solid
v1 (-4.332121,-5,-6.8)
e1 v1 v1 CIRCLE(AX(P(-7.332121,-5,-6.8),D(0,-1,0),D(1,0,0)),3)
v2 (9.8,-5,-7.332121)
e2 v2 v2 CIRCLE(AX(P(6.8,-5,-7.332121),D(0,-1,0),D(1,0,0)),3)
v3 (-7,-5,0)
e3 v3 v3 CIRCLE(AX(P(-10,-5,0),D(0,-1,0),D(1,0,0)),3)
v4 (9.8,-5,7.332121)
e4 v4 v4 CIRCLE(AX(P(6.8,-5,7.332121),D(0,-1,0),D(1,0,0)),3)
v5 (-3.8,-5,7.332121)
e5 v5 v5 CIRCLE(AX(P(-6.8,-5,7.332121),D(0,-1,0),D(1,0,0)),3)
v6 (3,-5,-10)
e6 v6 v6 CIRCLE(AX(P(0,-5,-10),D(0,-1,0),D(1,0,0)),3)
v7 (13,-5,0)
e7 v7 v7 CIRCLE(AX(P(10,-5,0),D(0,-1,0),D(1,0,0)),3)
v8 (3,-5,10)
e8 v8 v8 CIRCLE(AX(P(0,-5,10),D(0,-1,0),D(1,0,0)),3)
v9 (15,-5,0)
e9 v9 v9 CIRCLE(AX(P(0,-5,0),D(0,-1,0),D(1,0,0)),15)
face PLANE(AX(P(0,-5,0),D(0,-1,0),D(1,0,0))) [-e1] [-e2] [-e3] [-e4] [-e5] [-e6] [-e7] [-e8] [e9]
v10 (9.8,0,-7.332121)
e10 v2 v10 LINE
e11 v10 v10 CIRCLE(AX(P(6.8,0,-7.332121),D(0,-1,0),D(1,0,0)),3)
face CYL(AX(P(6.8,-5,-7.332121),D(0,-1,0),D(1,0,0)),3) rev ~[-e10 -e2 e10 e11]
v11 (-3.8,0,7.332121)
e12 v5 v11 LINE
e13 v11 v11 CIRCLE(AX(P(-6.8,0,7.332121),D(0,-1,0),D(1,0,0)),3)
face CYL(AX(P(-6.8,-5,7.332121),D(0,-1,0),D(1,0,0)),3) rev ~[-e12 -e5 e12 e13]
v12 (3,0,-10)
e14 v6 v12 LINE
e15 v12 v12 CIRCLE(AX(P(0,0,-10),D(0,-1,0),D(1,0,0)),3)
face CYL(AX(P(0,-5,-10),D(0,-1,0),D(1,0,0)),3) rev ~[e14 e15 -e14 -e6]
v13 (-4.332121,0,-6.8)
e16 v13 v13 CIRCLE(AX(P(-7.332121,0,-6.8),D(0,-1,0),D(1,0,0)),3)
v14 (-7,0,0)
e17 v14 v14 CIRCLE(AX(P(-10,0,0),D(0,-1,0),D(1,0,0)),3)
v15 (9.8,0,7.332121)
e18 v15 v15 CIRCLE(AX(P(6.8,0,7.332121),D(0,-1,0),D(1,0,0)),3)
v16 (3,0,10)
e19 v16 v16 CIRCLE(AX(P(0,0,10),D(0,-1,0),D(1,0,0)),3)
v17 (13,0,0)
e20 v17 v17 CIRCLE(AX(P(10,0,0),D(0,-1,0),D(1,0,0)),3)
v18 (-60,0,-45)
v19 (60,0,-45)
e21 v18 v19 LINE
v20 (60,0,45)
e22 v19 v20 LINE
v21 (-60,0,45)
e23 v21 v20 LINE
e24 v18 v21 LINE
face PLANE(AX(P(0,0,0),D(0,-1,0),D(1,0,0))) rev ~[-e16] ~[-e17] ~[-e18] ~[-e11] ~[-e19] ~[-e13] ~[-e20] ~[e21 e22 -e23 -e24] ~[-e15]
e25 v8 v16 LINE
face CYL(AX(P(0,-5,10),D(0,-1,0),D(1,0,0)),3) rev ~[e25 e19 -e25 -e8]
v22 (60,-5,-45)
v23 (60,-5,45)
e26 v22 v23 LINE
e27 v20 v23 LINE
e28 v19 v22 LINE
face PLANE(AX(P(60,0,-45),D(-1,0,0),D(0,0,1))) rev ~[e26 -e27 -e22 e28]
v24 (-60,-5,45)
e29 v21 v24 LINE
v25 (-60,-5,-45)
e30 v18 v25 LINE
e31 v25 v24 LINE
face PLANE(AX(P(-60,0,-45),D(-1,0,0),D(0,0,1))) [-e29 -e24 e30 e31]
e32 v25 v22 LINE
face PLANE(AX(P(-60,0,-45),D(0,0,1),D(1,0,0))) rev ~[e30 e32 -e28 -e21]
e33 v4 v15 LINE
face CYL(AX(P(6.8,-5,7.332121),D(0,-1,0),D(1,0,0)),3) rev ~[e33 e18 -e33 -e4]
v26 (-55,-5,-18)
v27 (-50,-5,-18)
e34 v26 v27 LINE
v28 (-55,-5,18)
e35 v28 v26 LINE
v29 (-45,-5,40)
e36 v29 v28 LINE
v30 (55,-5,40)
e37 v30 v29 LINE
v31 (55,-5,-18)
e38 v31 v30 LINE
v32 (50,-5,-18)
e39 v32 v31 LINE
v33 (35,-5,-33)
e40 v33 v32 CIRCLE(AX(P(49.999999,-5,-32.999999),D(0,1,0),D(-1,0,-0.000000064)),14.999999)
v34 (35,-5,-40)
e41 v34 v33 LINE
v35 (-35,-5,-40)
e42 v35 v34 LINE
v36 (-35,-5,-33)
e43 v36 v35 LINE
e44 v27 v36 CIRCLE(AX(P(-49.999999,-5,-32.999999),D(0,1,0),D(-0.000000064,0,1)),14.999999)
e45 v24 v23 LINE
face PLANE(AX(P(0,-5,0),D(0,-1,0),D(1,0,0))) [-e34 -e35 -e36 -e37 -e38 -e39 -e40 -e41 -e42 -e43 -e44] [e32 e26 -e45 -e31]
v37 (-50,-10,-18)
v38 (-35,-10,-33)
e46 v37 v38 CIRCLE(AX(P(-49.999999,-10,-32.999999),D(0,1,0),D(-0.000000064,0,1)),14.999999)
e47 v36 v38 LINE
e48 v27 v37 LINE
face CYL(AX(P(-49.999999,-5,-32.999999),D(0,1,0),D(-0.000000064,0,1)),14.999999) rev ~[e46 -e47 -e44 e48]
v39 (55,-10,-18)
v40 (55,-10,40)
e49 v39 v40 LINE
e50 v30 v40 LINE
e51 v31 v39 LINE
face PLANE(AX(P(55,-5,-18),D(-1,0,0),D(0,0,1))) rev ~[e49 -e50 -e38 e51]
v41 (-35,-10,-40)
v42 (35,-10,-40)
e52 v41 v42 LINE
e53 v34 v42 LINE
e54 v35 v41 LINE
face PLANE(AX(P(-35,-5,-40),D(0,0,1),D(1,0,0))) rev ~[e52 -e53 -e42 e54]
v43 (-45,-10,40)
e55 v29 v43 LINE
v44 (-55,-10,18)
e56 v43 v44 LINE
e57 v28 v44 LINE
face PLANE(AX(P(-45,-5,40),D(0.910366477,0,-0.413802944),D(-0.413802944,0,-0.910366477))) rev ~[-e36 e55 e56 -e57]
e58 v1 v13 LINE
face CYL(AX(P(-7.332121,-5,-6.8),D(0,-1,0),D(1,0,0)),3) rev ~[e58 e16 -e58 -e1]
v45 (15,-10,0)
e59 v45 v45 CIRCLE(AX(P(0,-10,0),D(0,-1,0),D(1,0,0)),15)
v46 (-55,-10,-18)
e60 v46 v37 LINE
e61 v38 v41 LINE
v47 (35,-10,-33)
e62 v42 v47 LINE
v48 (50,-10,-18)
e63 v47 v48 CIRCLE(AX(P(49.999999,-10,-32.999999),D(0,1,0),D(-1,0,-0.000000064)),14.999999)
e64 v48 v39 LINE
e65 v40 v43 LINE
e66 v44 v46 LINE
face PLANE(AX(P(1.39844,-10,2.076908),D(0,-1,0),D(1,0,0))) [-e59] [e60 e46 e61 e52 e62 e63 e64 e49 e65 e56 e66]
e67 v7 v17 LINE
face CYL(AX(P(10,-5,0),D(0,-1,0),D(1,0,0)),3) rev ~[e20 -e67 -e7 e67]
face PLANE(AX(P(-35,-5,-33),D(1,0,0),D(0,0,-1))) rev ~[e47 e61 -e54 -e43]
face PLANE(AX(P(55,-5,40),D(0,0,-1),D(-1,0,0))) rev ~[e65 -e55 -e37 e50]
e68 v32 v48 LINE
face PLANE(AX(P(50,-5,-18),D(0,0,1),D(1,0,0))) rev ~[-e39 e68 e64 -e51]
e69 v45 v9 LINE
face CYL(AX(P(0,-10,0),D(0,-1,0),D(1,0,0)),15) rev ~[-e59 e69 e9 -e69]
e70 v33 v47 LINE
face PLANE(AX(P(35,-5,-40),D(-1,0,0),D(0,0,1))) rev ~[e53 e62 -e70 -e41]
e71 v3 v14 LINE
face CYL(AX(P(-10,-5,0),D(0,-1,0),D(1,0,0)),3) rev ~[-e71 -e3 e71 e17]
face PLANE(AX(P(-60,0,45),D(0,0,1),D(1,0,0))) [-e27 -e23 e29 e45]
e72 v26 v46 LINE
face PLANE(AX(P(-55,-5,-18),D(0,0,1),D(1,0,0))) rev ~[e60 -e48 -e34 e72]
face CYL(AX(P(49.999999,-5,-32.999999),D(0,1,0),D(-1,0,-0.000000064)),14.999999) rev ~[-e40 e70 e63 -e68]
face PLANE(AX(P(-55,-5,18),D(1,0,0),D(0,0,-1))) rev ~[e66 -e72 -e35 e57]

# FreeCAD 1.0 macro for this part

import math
import FreeCAD as App
import Part
import Sketcher
from FreeCAD import Vector
Q = App.Units.Quantity


def add_polygon(sketch, points):
    """Adds a closed chain of lines whose ends are joined by coincident constraints."""
    first, n = sketch.GeometryCount, len(points)
    for a, b in zip(points, points[1:] + points[:1]):
        sketch.addGeometry(Part.LineSegment(App.Vector(*a, 0), App.Vector(*b, 0)), False)
    for i in range(n):
        sketch.addConstraint(Sketcher.Constraint("Coincident", first + i, 2, first + (i + 1) % n, 1))

doc = App.newDocument("Part")
body = doc.addObject("PartDesign::Body", "Body")

# Sketch on XZ plane
sketch1 = body.newObject("Sketcher::SketchObject", "Sketch")
sketch1.AttachmentSupport = (doc.getObject("XZ_Plane"), [""])
sketch1.MapMode = "FlatFace"
add_polygon(sketch1, [(-60, 45), (-60, -45), (60, -45), (60, 45)])  # lines 0-3
sketch1.addConstraint(Sketcher.Constraint("Vertical", 0))
sketch1.addConstraint(Sketcher.Constraint("Horizontal", 1))
sketch1.addConstraint(Sketcher.Constraint("Vertical", 2))
sketch1.addConstraint(Sketcher.Constraint("Horizontal", 3))
sketch1.addConstraint(Sketcher.Constraint("Symmetric", 0, 2, 2, 2, -1, 1))
sketch1.addConstraint(Sketcher.Constraint("DistanceX", 1, 1, 1, 2, Q("120 mm")))
sketch1.addConstraint(Sketcher.Constraint("DistanceY", 0, 2, 0, 1, Q("90 mm")))
pad1 = body.newObject("PartDesign::Pad", "Pad")
pad1.Profile = sketch1
pad1.Length = 5

# Sketch on XZ plane
sketch2 = body.newObject("Sketcher::SketchObject", "Sketch001")
sketch2.AttachmentSupport = (doc.getObject("XZ_Plane"), [""])
sketch2.MapMode = "FlatFace"
sketch2.AttachmentOffset = App.Placement(Vector(0, 0, 5), App.Rotation())
sketch2.addGeometry(Part.LineSegment(Vector(55, -18, 0), Vector(55, 40, 0)), False)
sketch2.addGeometry(Part.LineSegment(Vector(55, 40, 0), Vector(-45, 40, 0)), False)
sketch2.addGeometry(Part.LineSegment(Vector(-45, 40, 0), Vector(-55, 18, 0)), False)
sketch2.addGeometry(Part.LineSegment(Vector(-55, 18, 0), Vector(-55, -18, 0)), False)
sketch2.addGeometry(Part.LineSegment(Vector(-55, -18, 0), Vector(-50, -18, 0)), False)
sketch2.addGeometry(Part.ArcOfCircle(Part.Circle(Vector(-50, -33, 0), Vector(0, 0, 1), 15), math.radians(0), math.radians(90)), False)
sketch2.addGeometry(Part.LineSegment(Vector(-35, -33, 0), Vector(-35, -40, 0)), False)
sketch2.addGeometry(Part.LineSegment(Vector(-35, -40, 0), Vector(35, -40, 0)), False)
sketch2.addGeometry(Part.LineSegment(Vector(35, -40, 0), Vector(35, -33, 0)), False)
sketch2.addGeometry(Part.ArcOfCircle(Part.Circle(Vector(50, -33, 0), Vector(0, 0, 1), 15), math.radians(90), math.radians(180)), False)
sketch2.addGeometry(Part.LineSegment(Vector(50, -18, 0), Vector(55, -18, 0)), False)
sketch2.addConstraint(Sketcher.Constraint("Coincident", 0, 2, 1, 1))
sketch2.addConstraint(Sketcher.Constraint("Coincident", 1, 2, 2, 1))
sketch2.addConstraint(Sketcher.Constraint("Coincident", 2, 2, 3, 1))
sketch2.addConstraint(Sketcher.Constraint("Coincident", 3, 2, 4, 1))
sketch2.addConstraint(Sketcher.Constraint("Tangent", 4, 2, 5, 2))
sketch2.addConstraint(Sketcher.Constraint("Tangent", 5, 1, 6, 1))
sketch2.addConstraint(Sketcher.Constraint("Coincident", 6, 2, 7, 1))
sketch2.addConstraint(Sketcher.Constraint("Coincident", 7, 2, 8, 1))
sketch2.addConstraint(Sketcher.Constraint("Tangent", 8, 2, 9, 2))
sketch2.addConstraint(Sketcher.Constraint("Tangent", 9, 1, 10, 1))
sketch2.addConstraint(Sketcher.Constraint("Coincident", 10, 2, 0, 1))
sketch2.addConstraint(Sketcher.Constraint("Vertical", 0))
sketch2.addConstraint(Sketcher.Constraint("Horizontal", 1))
sketch2.addConstraint(Sketcher.Constraint("Vertical", 3))
sketch2.addConstraint(Sketcher.Constraint("Horizontal", 4))
sketch2.addConstraint(Sketcher.Constraint("Vertical", 6))
sketch2.addConstraint(Sketcher.Constraint("Horizontal", 7))
sketch2.addConstraint(Sketcher.Constraint("Vertical", 8))
sketch2.addConstraint(Sketcher.Constraint("Horizontal", 10))
sketch2.addConstraint(Sketcher.Constraint("Equal", 5, 9))
sketch2.addConstraint(Sketcher.Constraint("Symmetric", 2, 2, 10, 2, -1, 1))
sketch2.addConstraint(Sketcher.Constraint("Symmetric", 5, 3, 9, 3, -2))
sketch2.addConstraint(Sketcher.Constraint("Radius", 5, Q("14.999999 mm")))
sketch2.addConstraint(Sketcher.Constraint("DistanceX", 1, 2, 1, 1, Q("100 mm")))
sketch2.addConstraint(Sketcher.Constraint("DistanceX", 4, 1, 4, 2, Q("5 mm")))
sketch2.addConstraint(Sketcher.Constraint("DistanceX", 7, 1, 7, 2, Q("70 mm")))
sketch2.addConstraint(Sketcher.Constraint("DistanceY", 0, 1, 0, 2, Q("58 mm")))
sketch2.addConstraint(Sketcher.Constraint("DistanceY", 3, 2, 3, 1, Q("36 mm")))
sketch2.addConstraint(Sketcher.Constraint("DistanceY", 6, 2, 6, 1, Q("7 mm")))
pad2 = body.newObject("PartDesign::Pad", "Pad001")
pad2.Profile = sketch2
pad2.Length = 5

# Sketch on XZ plane
sketch3 = body.newObject("Sketcher::SketchObject", "Sketch002")
sketch3.AttachmentSupport = (doc.getObject("XZ_Plane"), [""])
sketch3.MapMode = "FlatFace"
sketch3.AttachmentOffset = App.Placement(Vector(0, 0, 10), App.Rotation())
sketch3.addGeometry(Part.Circle(Vector(0, 0, 0), Vector(0, 0, 1), 15), False)
sketch3.addConstraint(Sketcher.Constraint("Coincident", 0, 3, -1, 1))
sketch3.addConstraint(Sketcher.Constraint("Diameter", 0, Q("30 mm")))
pocket1 = body.newObject("PartDesign::Pocket", "Pocket")
pocket1.Profile = sketch3
pocket1.Length = 5

# Sketch on XZ plane
sketch4 = body.newObject("Sketcher::SketchObject", "Sketch003")
sketch4.AttachmentSupport = (doc.getObject("XZ_Plane"), [""])
sketch4.MapMode = "FlatFace"
sketch4.AttachmentOffset = App.Placement(Vector(0, 0, 5), App.Rotation())
sketch4.addGeometry(Part.Circle(Vector(0, 10, 0), Vector(0, 0, 1), 3), False)
sketch4.addGeometry(Part.Circle(Vector(-6.8, 7.3, 0), Vector(0, 0, 1), 3), False)
sketch4.addGeometry(Part.Circle(Vector(-10, 0, 0), Vector(0, 0, 1), 3), False)
sketch4.addGeometry(Part.Circle(Vector(-7.3, -6.8, 0), Vector(0, 0, 1), 3), False)
sketch4.addGeometry(Part.Circle(Vector(0, -10, 0), Vector(0, 0, 1), 3), False)
sketch4.addGeometry(Part.Circle(Vector(6.8, -7.3, 0), Vector(0, 0, 1), 3), False)
sketch4.addGeometry(Part.Circle(Vector(10, 0, 0), Vector(0, 0, 1), 3), False)
sketch4.addGeometry(Part.Circle(Vector(6.8, 7.3, 0), Vector(0, 0, 1), 3), False)
sketch4.addConstraint(Sketcher.Constraint("Equal", 0, 1))
sketch4.addConstraint(Sketcher.Constraint("Equal", 1, 2))
sketch4.addConstraint(Sketcher.Constraint("Equal", 2, 3))
sketch4.addConstraint(Sketcher.Constraint("Equal", 3, 4))
sketch4.addConstraint(Sketcher.Constraint("Equal", 4, 5))
sketch4.addConstraint(Sketcher.Constraint("Equal", 5, 6))
sketch4.addConstraint(Sketcher.Constraint("Equal", 6, 7))
sketch4.addConstraint(Sketcher.Constraint("Symmetric", 0, 3, 4, 3, -1, 1))
sketch4.addConstraint(Sketcher.Constraint("Symmetric", 1, 3, 5, 3, -1, 1))
sketch4.addConstraint(Sketcher.Constraint("Symmetric", 2, 3, 6, 3, -1, 1))
sketch4.addConstraint(Sketcher.Constraint("Symmetric", 1, 3, 7, 3, -2))
sketch4.addConstraint(Sketcher.Constraint("PointOnObject", 0, 3, -2))
sketch4.addConstraint(Sketcher.Constraint("PointOnObject", 2, 3, -1))
sketch4.addConstraint(Sketcher.Constraint("Diameter", 0, Q("6 mm")))
sketch4.addConstraint(Sketcher.Constraint("DistanceY", -1, 1, 0, 3, Q("10 mm")))
sketch4.addConstraint(Sketcher.Constraint("DistanceX", 2, 3, -1, 1, Q("10 mm")))
sketch4.addConstraint(Sketcher.Constraint("DistanceX", 1, 3, -1, 1, Q("6.8 mm")))
sketch4.addConstraint(Sketcher.Constraint("DistanceY", 3, 3, -1, 1, Q("6.8 mm")))
sketch4.addConstraint(Sketcher.Constraint("DistanceY", -1, 1, 1, 3, Q("7.332121 mm")))
sketch4.addConstraint(Sketcher.Constraint("DistanceX", 3, 3, -1, 1, Q("7.332121 mm")))
pocket2 = body.newObject("PartDesign::Pocket", "Pocket001")
pocket2.Profile = sketch4
pocket2.Length = 5

doc.recompute()
